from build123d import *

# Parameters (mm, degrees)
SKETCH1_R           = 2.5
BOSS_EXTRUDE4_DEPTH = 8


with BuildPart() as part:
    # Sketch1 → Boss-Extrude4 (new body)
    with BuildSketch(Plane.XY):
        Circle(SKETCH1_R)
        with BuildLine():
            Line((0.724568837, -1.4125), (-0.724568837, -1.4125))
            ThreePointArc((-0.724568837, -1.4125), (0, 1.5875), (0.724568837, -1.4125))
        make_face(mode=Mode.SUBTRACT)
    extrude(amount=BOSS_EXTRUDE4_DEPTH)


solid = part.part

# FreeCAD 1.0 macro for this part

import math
import FreeCAD as App
import Part
import Sketcher

V = App.Vector

doc = App.newDocument("Part")
body = doc.addObject("PartDesign::Body", "Body")

sketch1 = doc.addObject("Sketcher::SketchObject", "Sketch")
body.addObject(sketch1)
sketch1.AttachmentSupport = (doc.XY_Plane, [""])
sketch1.MapMode = "FlatFace"
sketch1.addGeometry(Part.Circle(V(0, 0, 0), V(0, 0, 1), 2.5), False)
sketch1.addGeometry(Part.ArcOfCircle(Part.Circle(V(0, 0, 0), V(0, 0, 1), 1.6), math.radians(-63), math.radians(243)), False)
sketch1.addGeometry(Part.LineSegment(V(0.7, -1.4, 0), V(-0.7, -1.4, 0)), False)
sketch1.addConstraint(Sketcher.Constraint("Coincident", 1, 1, 2, 1))
sketch1.addConstraint(Sketcher.Constraint("Coincident", 2, 2, 1, 2))
sketch1.addConstraint(Sketcher.Constraint("Horizontal", 2))
sketch1.addConstraint(Sketcher.Constraint("Coincident", 0, 3, -1, 1))
sketch1.addConstraint(Sketcher.Constraint("Coincident", 1, 3, -1, 1))
sketch1.addConstraint(Sketcher.Constraint("Diameter", 0, 5.0))
sketch1.addConstraint(Sketcher.Constraint("Radius", 1, 1.5875))
sketch1.addConstraint(Sketcher.Constraint("DistanceY", 1, 1, -1, 1, 1.4125))
pad1 = doc.addObject("PartDesign::Pad", "Pad")
body.addObject(pad1)
pad1.Profile = sketch1
pad1.Length = 8

doc.recompute()
